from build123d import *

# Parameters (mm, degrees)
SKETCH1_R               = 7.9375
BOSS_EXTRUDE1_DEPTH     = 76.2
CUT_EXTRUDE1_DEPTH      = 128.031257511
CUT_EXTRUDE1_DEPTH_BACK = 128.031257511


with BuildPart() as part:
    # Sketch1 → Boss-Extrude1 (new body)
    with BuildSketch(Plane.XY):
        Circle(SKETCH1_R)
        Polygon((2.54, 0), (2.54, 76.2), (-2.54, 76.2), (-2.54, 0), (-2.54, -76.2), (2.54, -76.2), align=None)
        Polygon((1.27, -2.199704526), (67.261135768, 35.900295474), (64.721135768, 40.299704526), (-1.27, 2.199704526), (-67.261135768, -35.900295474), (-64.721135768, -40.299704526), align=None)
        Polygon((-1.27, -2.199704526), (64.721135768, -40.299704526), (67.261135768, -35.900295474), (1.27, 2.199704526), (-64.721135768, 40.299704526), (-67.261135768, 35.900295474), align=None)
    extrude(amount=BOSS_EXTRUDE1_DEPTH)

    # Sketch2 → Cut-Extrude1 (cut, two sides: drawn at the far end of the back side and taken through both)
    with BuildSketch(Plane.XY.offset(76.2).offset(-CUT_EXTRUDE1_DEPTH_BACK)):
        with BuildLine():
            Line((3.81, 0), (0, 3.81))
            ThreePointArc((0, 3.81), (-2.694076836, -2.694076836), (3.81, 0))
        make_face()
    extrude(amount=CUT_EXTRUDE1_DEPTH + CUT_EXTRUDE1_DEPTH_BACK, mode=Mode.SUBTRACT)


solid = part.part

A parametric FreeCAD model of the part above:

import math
import FreeCAD as App
import Part
import Sketcher
Q = App.Units.Quantity

doc = App.newDocument("Part")
params = doc.addObject("Spreadsheet::Sheet", "Params")
for row, (alias, value) in enumerate([
    ("sketch1_width", "0.2 in"),
    ("sketch1_radius", "0.3125 in"),
    ("sketch1_length", "0.2 in"),
    ("pad1_length", "3 in"),
    ("sketch2_radius", "0.15 in"),
], start=1):
    params.set(f"A{row}", alias)
    params.set(f"B{row}", "=" + value)
    params.setAlias(f"B{row}", alias)

body = doc.addObject("PartDesign::Body", "Body")

# Sketch on XY plane
sketch1 = body.newObject("Sketcher::SketchObject", "Sketch")
sketch1.AttachmentSupport = (doc.getObject("XY_Plane"), [""])
sketch1.MapMode = "FlatFace"
sketch1.addGeometry(Part.LineSegment(App.Vector(-2.5, -76.2, 0), App.Vector(2.5, -76.2, 0)), False)
sketch1.addGeometry(Part.LineSegment(App.Vector(2.5, -76.2, 0), App.Vector(2.5, -7.5, 0)), False)
sketch1.addGeometry(Part.ArcOfCircle(Part.Circle(App.Vector(0, 0, 0), App.Vector(0, 0, 1), 7.9), math.radians(-71), math.radians(-49)), False)
sketch1.addGeometry(Part.LineSegment(App.Vector(5.2, -6, 0), App.Vector(64.7, -40.3, 0)), False)
sketch1.addGeometry(Part.LineSegment(App.Vector(64.7, -40.3, 0), App.Vector(67.3, -35.9, 0)), False)
sketch1.addGeometry(Part.LineSegment(App.Vector(67.3, -35.9, 0), App.Vector(7.8, -1.6, 0)), False)
sketch1.addGeometry(Part.ArcOfCircle(Part.Circle(App.Vector(0, 0, 0), App.Vector(0, 0, 1), 7.9), math.radians(-11), math.radians(11)), False)
sketch1.addGeometry(Part.LineSegment(App.Vector(7.8, 1.6, 0), App.Vector(67.3, 35.9, 0)), False)
sketch1.addGeometry(Part.LineSegment(App.Vector(67.3, 35.9, 0), App.Vector(64.7, 40.3, 0)), False)
sketch1.addGeometry(Part.LineSegment(App.Vector(64.7, 40.3, 0), App.Vector(5.2, 6, 0)), False)
sketch1.addGeometry(Part.ArcOfCircle(Part.Circle(App.Vector(0, 0, 0), App.Vector(0, 0, 1), 7.9), math.radians(49), math.radians(71)), False)
sketch1.addGeometry(Part.LineSegment(App.Vector(2.5, 7.5, 0), App.Vector(2.5, 76.2, 0)), False)
sketch1.addGeometry(Part.LineSegment(App.Vector(2.5, 76.2, 0), App.Vector(-2.5, 76.2, 0)), False)
sketch1.addGeometry(Part.LineSegment(App.Vector(-2.5, 76.2, 0), App.Vector(-2.5, 7.5, 0)), False)
sketch1.addGeometry(Part.ArcOfCircle(Part.Circle(App.Vector(0, 0, 0), App.Vector(0, 0, 1), 7.9), math.radians(109), math.radians(131)), False)
sketch1.addGeometry(Part.LineSegment(App.Vector(-5.2, 6, 0), App.Vector(-64.7, 40.3, 0)), False)
sketch1.addGeometry(Part.LineSegment(App.Vector(-64.7, 40.3, 0), App.Vector(-67.3, 35.9, 0)), False)
sketch1.addGeometry(Part.LineSegment(App.Vector(-67.3, 35.9, 0), App.Vector(-7.8, 1.6, 0)), False)
sketch1.addGeometry(Part.ArcOfCircle(Part.Circle(App.Vector(0, 0, 0), App.Vector(0, 0, 1), 7.9), math.radians(169), math.radians(191)), False)
sketch1.addGeometry(Part.LineSegment(App.Vector(-7.8, -1.6, 0), App.Vector(-67.3, -35.9, 0)), False)
sketch1.addGeometry(Part.LineSegment(App.Vector(-67.3, -35.9, 0), App.Vector(-64.7, -40.3, 0)), False)
sketch1.addGeometry(Part.LineSegment(App.Vector(-64.7, -40.3, 0), App.Vector(-5.2, -6, 0)), False)
sketch1.addGeometry(Part.ArcOfCircle(Part.Circle(App.Vector(0, 0, 0), App.Vector(0, 0, 1), 7.9), math.radians(-131), math.radians(-109)), False)
sketch1.addGeometry(Part.LineSegment(App.Vector(-2.5, -7.5, 0), App.Vector(-2.5, -76.2, 0)), False)
sketch1.addConstraint(Sketcher.Constraint("Coincident", 0, 2, 1, 1))
sketch1.addConstraint(Sketcher.Constraint("Coincident", 1, 2, 2, 1))
sketch1.addConstraint(Sketcher.Constraint("Coincident", 2, 2, 3, 1))
sketch1.addConstraint(Sketcher.Constraint("Coincident", 3, 2, 4, 1))
sketch1.addConstraint(Sketcher.Constraint("Coincident", 4, 2, 5, 1))
sketch1.addConstraint(Sketcher.Constraint("Coincident", 5, 2, 6, 1))
sketch1.addConstraint(Sketcher.Constraint("Coincident", 6, 2, 7, 1))
sketch1.addConstraint(Sketcher.Constraint("Coincident", 7, 2, 8, 1))
sketch1.addConstraint(Sketcher.Constraint("Coincident", 8, 2, 9, 1))
sketch1.addConstraint(Sketcher.Constraint("Coincident", 9, 2, 10, 1))
sketch1.addConstraint(Sketcher.Constraint("Coincident", 10, 2, 11, 1))
sketch1.addConstraint(Sketcher.Constraint("Coincident", 11, 2, 12, 1))
sketch1.addConstraint(Sketcher.Constraint("Coincident", 12, 2, 13, 1))
sketch1.addConstraint(Sketcher.Constraint("Coincident", 13, 2, 14, 1))
sketch1.addConstraint(Sketcher.Constraint("Coincident", 14, 2, 15, 1))
sketch1.addConstraint(Sketcher.Constraint("Coincident", 15, 2, 16, 1))
sketch1.addConstraint(Sketcher.Constraint("Coincident", 16, 2, 17, 1))
sketch1.addConstraint(Sketcher.Constraint("Coincident", 17, 2, 18, 1))
sketch1.addConstraint(Sketcher.Constraint("Coincident", 18, 2, 19, 1))
sketch1.addConstraint(Sketcher.Constraint("Coincident", 19, 2, 20, 1))
sketch1.addConstraint(Sketcher.Constraint("Coincident", 20, 2, 21, 1))
sketch1.addConstraint(Sketcher.Constraint("Coincident", 21, 2, 22, 1))
sketch1.addConstraint(Sketcher.Constraint("Coincident", 22, 2, 23, 1))
sketch1.addConstraint(Sketcher.Constraint("Coincident", 23, 2, 0, 1))
sketch1.addConstraint(Sketcher.Constraint("Horizontal", 0))
sketch1.addConstraint(Sketcher.Constraint("Vertical", 1))
sketch1.addConstraint(Sketcher.Constraint("Vertical", 11))
sketch1.addConstraint(Sketcher.Constraint("Horizontal", 12))
sketch1.addConstraint(Sketcher.Constraint("Vertical", 13))
sketch1.addConstraint(Sketcher.Constraint("Vertical", 23))
sketch1.addConstraint(Sketcher.Constraint("Coincident", 2, 3, -1, 1))
sketch1.addConstraint(Sketcher.Constraint("Coincident", 6, 3, -1, 1))
sketch1.addConstraint(Sketcher.Constraint("Coincident", 10, 3, -1, 1))
sketch1.addConstraint(Sketcher.Constraint("Coincident", 14, 3, -1, 1))
sketch1.addConstraint(Sketcher.Constraint("Coincident", 18, 3, -1, 1))
sketch1.addConstraint(Sketcher.Constraint("Coincident", 22, 3, -1, 1))
sketch1.addConstraint(Sketcher.Constraint("Equal", 2, 6))
sketch1.addConstraint(Sketcher.Constraint("Equal", 6, 10))
sketch1.addConstraint(Sketcher.Constraint("Equal", 10, 14))
sketch1.addConstraint(Sketcher.Constraint("Equal", 14, 18))
sketch1.addConstraint(Sketcher.Constraint("Equal", 18, 22))
sketch1.addConstraint(Sketcher.Constraint("Symmetric", 0, 2, 12, 2, -1, 1))
sketch1.addConstraint(Sketcher.Constraint("Symmetric", 3, 2, 15, 2, -1, 1))
sketch1.addConstraint(Sketcher.Constraint("Symmetric", 4, 2, 16, 2, -1, 1))
sketch1.addConstraint(Sketcher.Constraint("Symmetric", 7, 2, 19, 2, -1, 1))
sketch1.addConstraint(Sketcher.Constraint("Symmetric", 8, 2, 20, 2, -1, 1))
sketch1.addConstraint(Sketcher.Constraint("Symmetric", 8, 2, 15, 2, -2))
sketch1.addConstraint(Sketcher.Constraint("Symmetric", 7, 2, 16, 2, -2))
sketch1.addConstraint(Sketcher.Constraint("Perpendicular", 3, 4))
sketch1.addConstraint(Sketcher.Constraint("Perpendicular", 4, 5))
sketch1.addConstraint(Sketcher.Constraint("Perpendicular", 7, 8))
sketch1.addConstraint(Sketcher.Constraint("Perpendicular", 8, 9))
sketch1.addConstraint(Sketcher.Constraint("Parallel", 5, 15))
sketch1.addConstraint(Sketcher.Constraint("Perpendicular", 16, 17))
sketch1.addConstraint(Sketcher.Constraint("Parallel", 9, 19))
sketch1.addConstraint(Sketcher.Constraint("Perpendicular", 20, 21))
sketch1.addConstraint(Sketcher.Constraint("Horizontal", 10, 2, 13, 2))
sketch1.addConstraint(Sketcher.Constraint("Horizontal", 1, 2, 22, 2))
sketch1.addConstraint(Sketcher.Constraint("Equal", 3, 5))
sketch1.addConstraint(Sketcher.Constraint("DistanceX", 0, 1, 0, 2, Q("0.2 in")))
sketch1.addConstraint(Sketcher.Constraint("DistanceY", 0, 2, -1, 1, Q("3 in")))
sketch1.addConstraint(Sketcher.Constraint("Angle", 3, Q("-30 deg")))
sketch1.addConstraint(Sketcher.Constraint("Radius", 2, Q("0.3125 in")))
sketch1.addConstraint(Sketcher.Constraint("Distance", 4, Q("0.2 in")))
sketch1.addConstraint(Sketcher.Constraint("DistanceY", 4, 2, 1, 2, Q("28.380169 mm")))
sketch1.setExpression("Constraints[59]", "Params.sketch1_width")
sketch1.setExpression("Constraints[62]", "Params.sketch1_radius")
sketch1.setExpression("Constraints[63]", "Params.sketch1_length")
pad1 = body.newObject("PartDesign::Pad", "Pad")
pad1.Profile = sketch1
pad1.setExpression("Length", "Params.pad1_length")

# Sketch on XY plane
sketch2 = body.newObject("Sketcher::SketchObject", "Sketch001")
sketch2.AttachmentSupport = (doc.getObject("XY_Plane"), [""])
sketch2.MapMode = "FlatFace"
sketch2.AttachmentOffset = App.Placement(App.Vector(0, 0, 3 * 25.4), App.Rotation())
sketch2.addGeometry(Part.LineSegment(App.Vector(3.8, 0, 0), App.Vector(0, 3.8, 0)), False)
sketch2.addGeometry(Part.ArcOfCircle(Part.Circle(App.Vector(0, 0, 0), App.Vector(0, 0, 1), 3.8), math.radians(90), math.radians(360)), False)
sketch2.addConstraint(Sketcher.Constraint("Coincident", 0, 1, 1, 2))
sketch2.addConstraint(Sketcher.Constraint("Coincident", 1, 1, 0, 2))
sketch2.addConstraint(Sketcher.Constraint("Coincident", 1, 3, -1, 1))
sketch2.addConstraint(Sketcher.Constraint("PointOnObject", 0, 1, -1))
sketch2.addConstraint(Sketcher.Constraint("PointOnObject", 1, 1, -2))
sketch2.addConstraint(Sketcher.Constraint("Radius", 1, Q("0.15 in")))
sketch2.setExpression("Constraints[5]", "Params.sketch2_radius")
pocket1 = body.newObject("PartDesign::Pocket", "Pocket")
pocket1.Profile = sketch2
pocket1.Type = "ThroughAll"
pocket1.Midplane = True

doc.recompute()
